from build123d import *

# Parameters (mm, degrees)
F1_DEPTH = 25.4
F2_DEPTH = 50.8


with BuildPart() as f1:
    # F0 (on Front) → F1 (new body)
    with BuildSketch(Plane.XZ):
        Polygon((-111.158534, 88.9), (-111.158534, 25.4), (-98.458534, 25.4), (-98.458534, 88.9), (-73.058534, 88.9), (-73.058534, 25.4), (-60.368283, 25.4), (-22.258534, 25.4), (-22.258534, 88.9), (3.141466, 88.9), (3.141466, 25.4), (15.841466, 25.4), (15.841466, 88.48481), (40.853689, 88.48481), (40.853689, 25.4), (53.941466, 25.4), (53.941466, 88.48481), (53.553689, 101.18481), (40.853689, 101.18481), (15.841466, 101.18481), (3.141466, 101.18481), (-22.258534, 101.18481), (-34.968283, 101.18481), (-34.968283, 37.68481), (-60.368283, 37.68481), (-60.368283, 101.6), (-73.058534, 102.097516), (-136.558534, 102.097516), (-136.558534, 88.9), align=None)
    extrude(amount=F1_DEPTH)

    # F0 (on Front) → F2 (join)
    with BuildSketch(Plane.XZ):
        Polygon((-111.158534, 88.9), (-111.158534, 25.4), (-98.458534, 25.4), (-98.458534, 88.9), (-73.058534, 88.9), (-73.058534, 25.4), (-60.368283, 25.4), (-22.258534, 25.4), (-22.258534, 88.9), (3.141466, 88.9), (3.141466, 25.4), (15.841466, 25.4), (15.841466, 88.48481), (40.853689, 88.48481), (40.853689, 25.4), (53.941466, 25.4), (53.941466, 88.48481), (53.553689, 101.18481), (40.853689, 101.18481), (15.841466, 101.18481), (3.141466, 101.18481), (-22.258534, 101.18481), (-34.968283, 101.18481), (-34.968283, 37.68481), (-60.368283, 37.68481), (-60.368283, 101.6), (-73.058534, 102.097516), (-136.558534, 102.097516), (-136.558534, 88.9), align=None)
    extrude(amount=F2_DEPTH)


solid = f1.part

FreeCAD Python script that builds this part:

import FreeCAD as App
import Part
import Sketcher

V = App.Vector
Q = App.Units.Quantity


def add_polygon(sketch, points):
    """Adds a closed chain of lines whose ends are joined by coincident constraints."""
    first, n = sketch.GeometryCount, len(points)
    for a, b in zip(points, points[1:] + points[:1]):
        sketch.addGeometry(Part.LineSegment(App.Vector(*a, 0), App.Vector(*b, 0)), False)
    for i in range(n):
        sketch.addConstraint(Sketcher.Constraint("Coincident", first + i, 2, first + (i + 1) % n, 1))

doc = App.newDocument("Part")
body = doc.addObject("PartDesign::Body", "Body")

sketch1 = body.newObject("Sketcher::SketchObject", "Sketch")
sketch1.AttachmentSupport = (doc.getObject("XZ_Plane"), [""])
sketch1.MapMode = "FlatFace"
add_polygon(sketch1, [(-111.158534, 88.9), (-111.158534, 25.4), (-98.458534, 25.4), (-98.458534, 88.9), (-73.058534, 88.9), (-73.058534, 25.4), (-22.258534, 25.4), (-22.258534, 88.9), (3.141466, 88.9), (3.141466, 25.4), (15.841466, 25.4), (15.841466, 88.48481), (40.853689, 88.48481), (40.853689, 25.4), (53.941466, 25.4), (53.941466, 88.48481), (53.553689, 101.18481), (-34.968283, 101.18481), (-34.968283, 37.68481), (-60.368283, 37.68481), (-60.368283, 101.6), (-73.058534, 102.097516), (-136.558534, 102.097516), (-136.558534, 88.9)])
sketch1.addConstraint([
    Sketcher.Constraint("Vertical", 0),
    Sketcher.Constraint("Horizontal", 1),
    Sketcher.Constraint("Vertical", 2),
    Sketcher.Constraint("Horizontal", 3),
    Sketcher.Constraint("Vertical", 4),
    Sketcher.Constraint("Horizontal", 5),
    Sketcher.Constraint("Vertical", 6),
    Sketcher.Constraint("Horizontal", 7),
    Sketcher.Constraint("Vertical", 8),
    Sketcher.Constraint("Horizontal", 9),
    Sketcher.Constraint("Vertical", 10),
    Sketcher.Constraint("Horizontal", 11),
    Sketcher.Constraint("Vertical", 12),
    Sketcher.Constraint("Horizontal", 13),
    Sketcher.Constraint("Vertical", 14),
    Sketcher.Constraint("Horizontal", 16),
    Sketcher.Constraint("Vertical", 17),
    Sketcher.Constraint("Horizontal", 18),
    Sketcher.Constraint("Vertical", 19),
    Sketcher.Constraint("Horizontal", 21),
    Sketcher.Constraint("Vertical", 22),
    Sketcher.Constraint("Horizontal", 23),
    Sketcher.Constraint("Horizontal", 1, 2, 4, 2),
    Sketcher.Constraint("Horizontal", 3, 2, 6, 2),
    Sketcher.Constraint("Horizontal", 5, 2, 8, 2),
    Sketcher.Constraint("Horizontal", 9, 2, 12, 2),
    Sketcher.Constraint("Horizontal", 11, 2, 14, 2),
    Sketcher.Constraint("Horizontal", 7, 2, 22, 2),
    Sketcher.Constraint("Vertical", 4, 2, 20, 2),
    Sketcher.Constraint("Equal", 3, 7),
    Sketcher.Constraint("Equal", 1, 9),
    Sketcher.Constraint("Equal", 7, 18),
    Sketcher.Constraint("Equal", 18, 23),
    Sketcher.Constraint("Equal", 21, 0),
    Sketcher.Constraint("Equal", 8, 17),
    Sketcher.Constraint("DistanceX", 3, 1, 3, 2, Q("1 in")),
    Sketcher.Constraint("DistanceX", 5, 1, 5, 2, Q("2 in")),
    Sketcher.Constraint("DistanceX", 1, 1, 1, 2, Q("0.5 in")),
    Sketcher.Constraint("DistanceY", -1, 1, 0, 2, Q("1 in")),
    Sketcher.Constraint("DistanceY", -1, 1, 19, 2, Q("4 in")),
    Sketcher.Constraint("DistanceX", 8, 2, 13, 2, Q("2 in")),
    Sketcher.Constraint("Distance", 20, Q("0.5 in")),
    Sketcher.Constraint("DistanceY", 14, 2, 15, 2, Q("0.5 in")),
    Sketcher.Constraint("DistanceX", 11, 2, 15, 2, Q("0.5 in")),
    Sketcher.Constraint("DistanceY", 10, 1, 10, 2, Q("63.08481 mm")),
    Sketcher.Constraint("Distance", 15, Q("12.705919 mm")),
    Sketcher.Constraint("DistanceX", 16, 2, 16, 1, Q("88.521972 mm")),
    Sketcher.Constraint("DistanceX", -1, 1, 11, 2, Q("40.853689 mm")),
])
pad1 = body.newObject("PartDesign::Pad", "Pad")
pad1.Profile = sketch1
pad1.Length = Q("1 in")

sketch2 = body.newObject("Sketcher::SketchObject", "Sketch001")
sketch2.AttachmentSupport = (doc.getObject("XZ_Plane"), [""])
sketch2.MapMode = "FlatFace"
add_polygon(sketch2, [(-111.158534, 88.9), (-111.158534, 25.4), (-98.458534, 25.4), (-98.458534, 88.9), (-73.058534, 88.9), (-73.058534, 25.4), (-22.258534, 25.4), (-22.258534, 88.9), (3.141466, 88.9), (3.141466, 25.4), (15.841466, 25.4), (15.841466, 88.48481), (40.853689, 88.48481), (40.853689, 25.4), (53.941466, 25.4), (53.941466, 88.48481), (53.553689, 101.18481), (-34.968283, 101.18481), (-34.968283, 37.68481), (-60.368283, 37.68481), (-60.368283, 101.6), (-73.058534, 102.097516), (-136.558534, 102.097516), (-136.558534, 88.9)])
sketch2.addConstraint([
    Sketcher.Constraint("Vertical", 0),
    Sketcher.Constraint("Horizontal", 1),
    Sketcher.Constraint("Vertical", 2),
    Sketcher.Constraint("Horizontal", 3),
    Sketcher.Constraint("Vertical", 4),
    Sketcher.Constraint("Horizontal", 5),
    Sketcher.Constraint("Vertical", 6),
    Sketcher.Constraint("Horizontal", 7),
    Sketcher.Constraint("Vertical", 8),
    Sketcher.Constraint("Horizontal", 9),
    Sketcher.Constraint("Vertical", 10),
    Sketcher.Constraint("Horizontal", 11),
    Sketcher.Constraint("Vertical", 12),
    Sketcher.Constraint("Horizontal", 13),
    Sketcher.Constraint("Vertical", 14),
    Sketcher.Constraint("Horizontal", 16),
    Sketcher.Constraint("Vertical", 17),
    Sketcher.Constraint("Horizontal", 18),
    Sketcher.Constraint("Vertical", 19),
    Sketcher.Constraint("Horizontal", 21),
    Sketcher.Constraint("Vertical", 22),
    Sketcher.Constraint("Horizontal", 23),
    Sketcher.Constraint("Horizontal", 1, 2, 4, 2),
    Sketcher.Constraint("Horizontal", 3, 2, 6, 2),
    Sketcher.Constraint("Horizontal", 5, 2, 8, 2),
    Sketcher.Constraint("Horizontal", 9, 2, 12, 2),
    Sketcher.Constraint("Horizontal", 11, 2, 14, 2),
    Sketcher.Constraint("Horizontal", 7, 2, 22, 2),
    Sketcher.Constraint("Vertical", 4, 2, 20, 2),
    Sketcher.Constraint("Equal", 3, 7),
    Sketcher.Constraint("Equal", 1, 9),
    Sketcher.Constraint("Equal", 7, 18),
    Sketcher.Constraint("Equal", 18, 23),
    Sketcher.Constraint("Equal", 21, 0),
    Sketcher.Constraint("Equal", 8, 17),
    Sketcher.Constraint("DistanceX", 3, 1, 3, 2, Q("1 in")),
    Sketcher.Constraint("DistanceX", 5, 1, 5, 2, Q("2 in")),
    Sketcher.Constraint("DistanceX", 1, 1, 1, 2, Q("0.5 in")),
    Sketcher.Constraint("DistanceY", -1, 1, 0, 2, Q("1 in")),
    Sketcher.Constraint("DistanceY", -1, 1, 19, 2, Q("4 in")),
    Sketcher.Constraint("DistanceX", 8, 2, 13, 2, Q("2 in")),
    Sketcher.Constraint("Distance", 20, Q("0.5 in")),
    Sketcher.Constraint("DistanceY", 14, 2, 15, 2, Q("0.5 in")),
    Sketcher.Constraint("DistanceX", 11, 2, 15, 2, Q("0.5 in")),
    Sketcher.Constraint("DistanceY", 10, 1, 10, 2, Q("63.08481 mm")),
    Sketcher.Constraint("Distance", 15, Q("12.705919 mm")),
    Sketcher.Constraint("DistanceX", 16, 2, 16, 1, Q("88.521972 mm")),
    Sketcher.Constraint("DistanceX", -1, 1, 11, 2, Q("40.853689 mm")),
])
pad2 = body.newObject("PartDesign::Pad", "Pad001")
pad2.Profile = sketch2
pad2.Length = Q("2 in")

doc.recompute()
